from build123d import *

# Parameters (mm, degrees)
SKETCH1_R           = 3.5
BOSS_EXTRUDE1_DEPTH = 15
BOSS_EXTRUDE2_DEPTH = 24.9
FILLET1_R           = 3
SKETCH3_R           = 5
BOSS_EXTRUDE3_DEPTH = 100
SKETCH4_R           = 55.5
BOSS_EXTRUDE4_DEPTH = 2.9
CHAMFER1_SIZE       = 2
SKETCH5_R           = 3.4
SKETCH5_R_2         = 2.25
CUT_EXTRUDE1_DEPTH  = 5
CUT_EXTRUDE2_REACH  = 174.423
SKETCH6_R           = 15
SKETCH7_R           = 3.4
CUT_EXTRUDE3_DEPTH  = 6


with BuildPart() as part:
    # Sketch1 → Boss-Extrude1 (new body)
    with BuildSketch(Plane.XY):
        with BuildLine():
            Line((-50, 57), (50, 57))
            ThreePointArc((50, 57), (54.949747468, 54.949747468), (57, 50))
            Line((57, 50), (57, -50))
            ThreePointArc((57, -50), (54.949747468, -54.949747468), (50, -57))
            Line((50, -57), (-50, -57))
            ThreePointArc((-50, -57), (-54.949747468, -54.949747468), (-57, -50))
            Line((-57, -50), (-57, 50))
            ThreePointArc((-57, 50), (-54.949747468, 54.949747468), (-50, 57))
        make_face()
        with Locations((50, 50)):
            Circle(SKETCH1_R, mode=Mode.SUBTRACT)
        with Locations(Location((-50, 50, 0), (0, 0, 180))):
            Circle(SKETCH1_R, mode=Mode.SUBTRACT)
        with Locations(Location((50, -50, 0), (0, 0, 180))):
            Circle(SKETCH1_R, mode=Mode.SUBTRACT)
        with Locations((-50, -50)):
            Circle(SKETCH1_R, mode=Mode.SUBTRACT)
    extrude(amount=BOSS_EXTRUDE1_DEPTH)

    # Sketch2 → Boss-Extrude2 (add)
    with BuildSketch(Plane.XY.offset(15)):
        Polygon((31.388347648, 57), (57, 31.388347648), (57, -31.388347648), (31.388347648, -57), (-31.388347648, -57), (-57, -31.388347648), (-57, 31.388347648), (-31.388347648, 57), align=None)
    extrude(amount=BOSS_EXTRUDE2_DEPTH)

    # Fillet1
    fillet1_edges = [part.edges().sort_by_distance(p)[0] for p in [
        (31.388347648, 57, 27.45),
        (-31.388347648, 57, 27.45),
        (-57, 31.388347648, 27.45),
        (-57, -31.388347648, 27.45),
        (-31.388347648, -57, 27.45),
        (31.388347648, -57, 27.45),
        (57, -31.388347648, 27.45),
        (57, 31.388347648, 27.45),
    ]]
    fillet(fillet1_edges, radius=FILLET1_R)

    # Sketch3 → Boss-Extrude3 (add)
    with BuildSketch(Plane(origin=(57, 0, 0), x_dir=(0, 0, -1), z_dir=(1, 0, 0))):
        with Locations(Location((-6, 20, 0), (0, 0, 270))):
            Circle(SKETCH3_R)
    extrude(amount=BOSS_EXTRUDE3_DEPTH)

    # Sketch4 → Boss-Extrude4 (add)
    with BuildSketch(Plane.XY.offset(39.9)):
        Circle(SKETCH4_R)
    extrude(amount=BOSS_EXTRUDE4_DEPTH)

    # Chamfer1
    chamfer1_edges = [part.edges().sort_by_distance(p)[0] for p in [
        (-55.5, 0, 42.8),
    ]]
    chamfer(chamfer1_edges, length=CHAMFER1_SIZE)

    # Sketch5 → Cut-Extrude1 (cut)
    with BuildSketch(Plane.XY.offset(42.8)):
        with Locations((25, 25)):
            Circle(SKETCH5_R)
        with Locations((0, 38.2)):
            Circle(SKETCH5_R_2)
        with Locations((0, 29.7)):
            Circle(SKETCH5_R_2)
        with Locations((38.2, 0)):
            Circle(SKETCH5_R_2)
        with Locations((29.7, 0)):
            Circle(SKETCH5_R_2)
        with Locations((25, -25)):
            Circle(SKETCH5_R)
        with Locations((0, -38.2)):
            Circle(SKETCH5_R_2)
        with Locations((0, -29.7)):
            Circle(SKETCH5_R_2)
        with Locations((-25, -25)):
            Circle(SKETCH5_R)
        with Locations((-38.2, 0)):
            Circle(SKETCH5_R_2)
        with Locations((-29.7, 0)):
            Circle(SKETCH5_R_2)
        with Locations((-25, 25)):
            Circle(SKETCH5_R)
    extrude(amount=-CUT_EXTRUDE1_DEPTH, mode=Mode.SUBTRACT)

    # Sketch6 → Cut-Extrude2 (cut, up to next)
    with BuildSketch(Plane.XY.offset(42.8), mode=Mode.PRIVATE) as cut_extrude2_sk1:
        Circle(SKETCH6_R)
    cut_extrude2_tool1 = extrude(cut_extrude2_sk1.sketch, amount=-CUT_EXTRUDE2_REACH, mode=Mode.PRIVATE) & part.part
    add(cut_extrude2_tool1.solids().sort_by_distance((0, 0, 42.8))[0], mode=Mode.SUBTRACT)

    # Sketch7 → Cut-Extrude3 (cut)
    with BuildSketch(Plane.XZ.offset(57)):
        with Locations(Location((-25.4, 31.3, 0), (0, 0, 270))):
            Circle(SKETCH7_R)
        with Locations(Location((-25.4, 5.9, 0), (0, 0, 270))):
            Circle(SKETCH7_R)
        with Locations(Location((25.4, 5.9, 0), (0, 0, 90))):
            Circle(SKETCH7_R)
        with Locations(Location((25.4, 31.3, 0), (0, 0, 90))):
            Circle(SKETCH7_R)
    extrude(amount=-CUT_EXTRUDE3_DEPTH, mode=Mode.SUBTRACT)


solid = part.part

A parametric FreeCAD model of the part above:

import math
import FreeCAD as App
import Part
import Sketcher

V = App.Vector
Q = App.Units.Quantity


def edges_at(feature, points):
    """Names of the edges that pass closest to the given points."""
    edges = feature.Shape.Edges
    near = lambda p: min(range(len(edges)), key=lambda i: edges[i].distToShape(Part.Vertex(*p))[0])
    return sorted({f"Edge{near(p) + 1}" for p in points})

doc = App.newDocument("Part")
body = doc.addObject("PartDesign::Body", "Body")

# Sketch on XY plane
sketch1 = body.newObject("Sketcher::SketchObject", "Sketch")
sketch1.AttachmentSupport = (doc.getObject("XY_Plane"), [""])
sketch1.MapMode = "FlatFace"
sketch1.addGeometry([
    Part.LineSegment(V(50, 57, 0), V(-50, 57, 0)),  # 0
    Part.ArcOfCircle(Part.Circle(V(-50, 50, 0), V(0, 0, 1), 7), math.radians(90), math.radians(180)),  # 1
    Part.LineSegment(V(-57, 50, 0), V(-57, -50, 0)),  # 2
    Part.ArcOfCircle(Part.Circle(V(-50, -50, 0), V(0, 0, 1), 7), math.radians(-180), math.radians(-90)),  # 3
    Part.LineSegment(V(-50, -57, 0), V(50, -57, 0)),  # 4
    Part.ArcOfCircle(Part.Circle(V(50, -50, 0), V(0, 0, 1), 7), math.radians(-90), math.radians(0)),  # 5
    Part.LineSegment(V(57, -50, 0), V(57, 50, 0)),  # 6
    Part.ArcOfCircle(Part.Circle(V(50, 50, 0), V(0, 0, 1), 7), math.radians(0), math.radians(90)),  # 7
    Part.Circle(V(50, -50, 0), V(0, 0, 1), 3.5),  # 8
    Part.Circle(V(-50, -50, 0), V(0, 0, 1), 3.5),  # 9
    Part.Circle(V(50, 50, 0), V(0, 0, 1), 3.5),  # 10
    Part.Circle(V(-50, 50, 0), V(0, 0, 1), 3.5),  # 11
], False)
sketch1.addConstraint([
    Sketcher.Constraint("Tangent", 0, 2, 1, 1),
    Sketcher.Constraint("Tangent", 1, 2, 2, 1),
    Sketcher.Constraint("Tangent", 2, 2, 3, 1),
    Sketcher.Constraint("Tangent", 3, 2, 4, 1),
    Sketcher.Constraint("Tangent", 4, 2, 5, 1),
    Sketcher.Constraint("Tangent", 5, 2, 6, 1),
    Sketcher.Constraint("Tangent", 6, 2, 7, 1),
    Sketcher.Constraint("Tangent", 7, 2, 0, 1),
    Sketcher.Constraint("Horizontal", 0),
    Sketcher.Constraint("Vertical", 2),
    Sketcher.Constraint("Horizontal", 4),
    Sketcher.Constraint("Vertical", 6),
    Sketcher.Constraint("Coincident", 8, 3, 5, 3),
    Sketcher.Constraint("Coincident", 9, 3, 3, 3),
    Sketcher.Constraint("Coincident", 10, 3, 7, 3),
    Sketcher.Constraint("Coincident", 11, 3, 1, 3),
    Sketcher.Constraint("Equal", 1, 3),
    Sketcher.Constraint("Equal", 3, 5),
    Sketcher.Constraint("Equal", 5, 7),
    Sketcher.Constraint("Equal", 8, 9),
    Sketcher.Constraint("Equal", 9, 10),
    Sketcher.Constraint("Equal", 10, 11),
    Sketcher.Constraint("Symmetric", 1, 3, 5, 3, -1, 1),
    Sketcher.Constraint("Equal", 4, 2),
    Sketcher.Constraint("Diameter", 8, Q("7 mm")),
    Sketcher.Constraint("Radius", 1, Q("7 mm")),
    Sketcher.Constraint("DistanceX", 0, 2, 0, 1, Q("100 mm")),
])
pad1 = body.newObject("PartDesign::Pad", "Pad")
pad1.Profile = sketch1
pad1.Length = 15

# Sketch on XY plane
sketch2 = body.newObject("Sketcher::SketchObject", "Sketch001")
sketch2.AttachmentSupport = (doc.getObject("XY_Plane"), [""])
sketch2.MapMode = "FlatFace"
sketch2.AttachmentOffset = App.Placement(V(0, 0, 15), App.Rotation())
sketch2.addGeometry([
    Part.LineSegment(V(57, 31, 0), V(31, 57, 0)),  # 0
    Part.LineSegment(V(31, 57, 0), V(-31, 57, 0)),  # 1
    Part.LineSegment(V(-31, 57, 0), V(-57, 31, 0)),  # 2
    Part.LineSegment(V(-57, 31, 0), V(-57, -31, 0)),  # 3
    Part.LineSegment(V(-57, -31, 0), V(-31, -57, 0)),  # 4
    Part.LineSegment(V(-31, -57, 0), V(31, -57, 0)),  # 5
    Part.LineSegment(V(31, -57, 0), V(57, -31, 0)),  # 6
    Part.LineSegment(V(57, -31, 0), V(57, 31, 0)),  # 7
], False)
sketch2.addConstraint([
    Sketcher.Constraint("Coincident", 0, 2, 1, 1),
    Sketcher.Constraint("Coincident", 1, 2, 2, 1),
    Sketcher.Constraint("Coincident", 2, 2, 3, 1),
    Sketcher.Constraint("Coincident", 3, 2, 4, 1),
    Sketcher.Constraint("Coincident", 4, 2, 5, 1),
    Sketcher.Constraint("Coincident", 5, 2, 6, 1),
    Sketcher.Constraint("Coincident", 6, 2, 7, 1),
    Sketcher.Constraint("Coincident", 7, 2, 0, 1),
    Sketcher.Constraint("Horizontal", 1),
    Sketcher.Constraint("Vertical", 3),
    Sketcher.Constraint("Horizontal", 5),
    Sketcher.Constraint("Vertical", 7),
    Sketcher.Constraint("Symmetric", 0, 2, 4, 2, -1, 1),
    Sketcher.Constraint("Symmetric", 2, 2, 6, 2, -1, 1),
    Sketcher.Constraint("Perpendicular", 0, 2),
    Sketcher.Constraint("Perpendicular", 2, 4),
    Sketcher.Constraint("Perpendicular", 4, 6),
    Sketcher.Constraint("Horizontal", 3, 2, 6, 2),
    Sketcher.Constraint("Vertical", 1, 2, 4, 2),
    Sketcher.Constraint("Equal", 5, 3),
    Sketcher.Constraint("DistanceY", -1, 1, 0, 2, Q("57 mm")),
    Sketcher.Constraint("DistanceX", 1, 2, 1, 1, Q("62.776695 mm")),
])
pad2 = body.newObject("PartDesign::Pad", "Pad001")
pad2.Profile = sketch2
pad2.Length = 24.9
doc.recompute()

fillet = body.newObject("PartDesign::Fillet", "Fillet")
fillet.Base = (pad2, edges_at(pad2, [
    (31.388, 57, 27.45),
    (-31.388, 57, 27.45),
    (-57, 31.388, 27.45),
    (-57, -31.388, 27.45),
    (-31.388, -57, 27.45),
    (31.388, -57, 27.45),
    (57, -31.388, 27.45),
    (57, 31.388, 27.45),
]))
fillet.Radius = 3

# Sketch on YZ plane
sketch3 = body.newObject("Sketcher::SketchObject", "Sketch002")
sketch3.AttachmentSupport = (doc.getObject("YZ_Plane"), [""])
sketch3.MapMode = "FlatFace"
sketch3.AttachmentOffset = App.Placement(V(0, 0, 57), App.Rotation())
sketch3.addGeometry(Part.Circle(V(20, 6, 0), V(0, 0, 1), 5), False)
sketch3.addConstraint([
    Sketcher.Constraint("Diameter", 0, Q("10 mm")),
    Sketcher.Constraint("DistanceX", -1, 1, 0, 3, Q("20 mm")),
    Sketcher.Constraint("DistanceY", -1, 1, 0, 3, Q("6 mm")),
])
pad3 = body.newObject("PartDesign::Pad", "Pad002")
pad3.Profile = sketch3
pad3.Length = 100

# Sketch on XY plane
sketch4 = body.newObject("Sketcher::SketchObject", "Sketch003")
sketch4.AttachmentSupport = (doc.getObject("XY_Plane"), [""])
sketch4.MapMode = "FlatFace"
sketch4.AttachmentOffset = App.Placement(V(0, 0, 39.9), App.Rotation())
sketch4.addGeometry(Part.Circle(V(0, 0, 0), V(0, 0, 1), 56), False)
sketch4.addConstraint([
    Sketcher.Constraint("Coincident", 0, 3, -1, 1),
    Sketcher.Constraint("Diameter", 0, Q("111 mm")),
])
pad4 = body.newObject("PartDesign::Pad", "Pad003")
pad4.Profile = sketch4
pad4.Length = 2.9
doc.recompute()

chamfer = body.newObject("PartDesign::Chamfer", "Chamfer")
chamfer.Base = (pad4, edges_at(pad4, [(-55.5, 0, 42.8)]))
chamfer.Size = 2

# Sketch on XY plane
sketch5 = body.newObject("Sketcher::SketchObject", "Sketch004")
sketch5.AttachmentSupport = (doc.getObject("XY_Plane"), [""])
sketch5.MapMode = "FlatFace"
sketch5.AttachmentOffset = App.Placement(V(0, 0, 42.8), App.Rotation())
sketch5.addGeometry([
    Part.Circle(V(25, 25, 0), V(0, 0, 1), 3.4),  # 0
    Part.Circle(V(0, 38.2, 0), V(0, 0, 1), 2.2),  # 1
    Part.Circle(V(0, 29.7, 0), V(0, 0, 1), 2.2),  # 2
    Part.Circle(V(38.2, 0, 0), V(0, 0, 1), 2.2),  # 3
    Part.Circle(V(29.7, 0, 0), V(0, 0, 1), 2.2),  # 4
    Part.Circle(V(25, -25, 0), V(0, 0, 1), 3.4),  # 5
    Part.Circle(V(0, -38.2, 0), V(0, 0, 1), 2.2),  # 6
    Part.Circle(V(0, -29.7, 0), V(0, 0, 1), 2.2),  # 7
    Part.Circle(V(-25, -25, 0), V(0, 0, 1), 3.4),  # 8
    Part.Circle(V(-38.2, 0, 0), V(0, 0, 1), 2.2),  # 9
    Part.Circle(V(-29.7, 0, 0), V(0, 0, 1), 2.2),  # 10
    Part.Circle(V(-25, 25, 0), V(0, 0, 1), 3.4),  # 11
], False)
sketch5.addConstraint([
    Sketcher.Constraint("Equal", 1, 2),
    Sketcher.Constraint("Equal", 2, 3),
    Sketcher.Constraint("Equal", 3, 4),
    Sketcher.Constraint("Equal", 0, 5),
    Sketcher.Constraint("Equal", 4, 6),
    Sketcher.Constraint("Equal", 6, 7),
    Sketcher.Constraint("Equal", 5, 8),
    Sketcher.Constraint("Equal", 7, 9),
    Sketcher.Constraint("Equal", 9, 10),
    Sketcher.Constraint("Equal", 8, 11),
    Sketcher.Constraint("Symmetric", 1, 3, 6, 3, -1, 1),
    Sketcher.Constraint("Symmetric", 2, 3, 7, 3, -1, 1),
    Sketcher.Constraint("Symmetric", 0, 3, 8, 3, -1, 1),
    Sketcher.Constraint("Symmetric", 3, 3, 9, 3, -1, 1),
    Sketcher.Constraint("Symmetric", 4, 3, 10, 3, -1, 1),
    Sketcher.Constraint("Symmetric", 5, 3, 11, 3, -1, 1),
    Sketcher.Constraint("Symmetric", 5, 3, 8, 3, -2),
    Sketcher.Constraint("PointOnObject", 1, 3, -2),
    Sketcher.Constraint("PointOnObject", 2, 3, -2),
    Sketcher.Constraint("PointOnObject", 3, 3, -1),
    Sketcher.Constraint("PointOnObject", 4, 3, -1),
    Sketcher.Constraint("Diameter", 0, Q("6.8 mm")),
    Sketcher.Constraint("Diameter", 1, Q("4.5 mm")),
    Sketcher.Constraint("DistanceX", -1, 1, 0, 3, Q("25 mm")),
    Sketcher.Constraint("DistanceY", -1, 1, 0, 3, Q("25 mm")),
    Sketcher.Constraint("DistanceY", -1, 1, 1, 3, Q("38.2 mm")),
    Sketcher.Constraint("DistanceY", -1, 1, 2, 3, Q("29.7 mm")),
    Sketcher.Constraint("DistanceX", -1, 1, 3, 3, Q("38.2 mm")),
    Sketcher.Constraint("DistanceX", -1, 1, 4, 3, Q("29.7 mm")),
])
pocket1 = body.newObject("PartDesign::Pocket", "Pocket")
pocket1.Profile = sketch5
pocket1.Length = 5

# Sketch on XY plane
sketch6 = body.newObject("Sketcher::SketchObject", "Sketch005")
sketch6.AttachmentSupport = (doc.getObject("XY_Plane"), [""])
sketch6.MapMode = "FlatFace"
sketch6.AttachmentOffset = App.Placement(V(0, 0, 42.8), App.Rotation())
sketch6.addGeometry(Part.Circle(V(0, 0, 0), V(0, 0, 1), 15), False)
sketch6.addConstraint([
    Sketcher.Constraint("Coincident", 0, 3, -1, 1),
    Sketcher.Constraint("Diameter", 0, Q("30 mm")),
])
pocket2 = body.newObject("PartDesign::Pocket", "Pocket001")
pocket2.Profile = sketch6
pocket2.Type = "UpToFirst"

# Sketch on XZ plane
sketch7 = body.newObject("Sketcher::SketchObject", "Sketch006")
sketch7.AttachmentSupport = (doc.getObject("XZ_Plane"), [""])
sketch7.MapMode = "FlatFace"
sketch7.AttachmentOffset = App.Placement(V(0, 0, 57), App.Rotation())
sketch7.addGeometry([
    Part.Circle(V(-25.4, 31.3, 0), V(0, 0, 1), 3.4),
    Part.Circle(V(-25.4, 5.9, 0), V(0, 0, 1), 3.4),
    Part.Circle(V(25.4, 5.9, 0), V(0, 0, 1), 3.4),
    Part.Circle(V(25.4, 31.3, 0), V(0, 0, 1), 3.4),
], False)
sketch7.addConstraint([
    Sketcher.Constraint("Equal", 0, 1),
    Sketcher.Constraint("Equal", 1, 2),
    Sketcher.Constraint("Equal", 2, 3),
    Sketcher.Constraint("Symmetric", 1, 3, 2, 3, -2),
    Sketcher.Constraint("Symmetric", 0, 3, 3, 3, -2),
    Sketcher.Constraint("Vertical", 0, 3, 1, 3),
    Sketcher.Constraint("Diameter", 0, Q("6.8 mm")),
    Sketcher.Constraint("DistanceX", 0, 3, -1, 1, Q("25.4 mm")),
    Sketcher.Constraint("DistanceY", -1, 1, 0, 3, Q("31.3 mm")),
    Sketcher.Constraint("DistanceY", -1, 1, 1, 3, Q("5.9 mm")),
])
pocket3 = body.newObject("PartDesign::Pocket", "Pocket002")
pocket3.Profile = sketch7
pocket3.Length = 6

doc.recompute()
